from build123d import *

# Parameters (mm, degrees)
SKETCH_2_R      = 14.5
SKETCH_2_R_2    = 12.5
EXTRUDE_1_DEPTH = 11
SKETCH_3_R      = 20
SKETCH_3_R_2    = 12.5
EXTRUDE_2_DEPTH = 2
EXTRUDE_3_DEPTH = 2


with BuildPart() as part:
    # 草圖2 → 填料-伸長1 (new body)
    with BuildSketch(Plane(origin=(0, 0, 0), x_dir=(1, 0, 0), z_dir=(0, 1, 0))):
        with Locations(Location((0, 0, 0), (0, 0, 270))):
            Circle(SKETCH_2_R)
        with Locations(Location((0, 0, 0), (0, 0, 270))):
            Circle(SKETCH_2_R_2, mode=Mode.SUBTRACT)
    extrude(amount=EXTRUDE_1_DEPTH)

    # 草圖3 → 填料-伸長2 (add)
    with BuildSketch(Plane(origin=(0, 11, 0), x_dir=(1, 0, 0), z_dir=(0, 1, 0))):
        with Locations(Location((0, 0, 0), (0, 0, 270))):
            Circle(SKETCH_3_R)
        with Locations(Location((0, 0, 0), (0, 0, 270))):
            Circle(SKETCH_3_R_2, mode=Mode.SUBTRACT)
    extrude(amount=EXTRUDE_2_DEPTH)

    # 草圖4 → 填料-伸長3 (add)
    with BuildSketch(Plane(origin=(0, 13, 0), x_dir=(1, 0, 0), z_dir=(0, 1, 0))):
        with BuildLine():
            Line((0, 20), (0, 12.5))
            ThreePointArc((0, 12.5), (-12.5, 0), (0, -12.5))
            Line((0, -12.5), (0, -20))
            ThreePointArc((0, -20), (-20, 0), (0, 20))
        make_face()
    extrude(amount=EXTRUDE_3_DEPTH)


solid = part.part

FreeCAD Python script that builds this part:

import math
import FreeCAD as App
import Part
import Sketcher

doc = App.newDocument("Part")
body = doc.addObject("PartDesign::Body", "Body")

sketch1 = body.newObject("Sketcher::SketchObject", "Sketch")
sketch1.AttachmentSupport = (doc.getObject("XZ_Plane"), [""])
sketch1.MapMode = "FlatFace"
sketch1.addGeometry(Part.Circle(App.Vector(0, 0, 0), App.Vector(0, 0, 1), 14), False)
sketch1.addGeometry(Part.Circle(App.Vector(0, 0, 0), App.Vector(0, 0, 1), 12), False)
sketch1.addConstraint(Sketcher.Constraint("Coincident", 0, 3, -1, 1))
sketch1.addConstraint(Sketcher.Constraint("Coincident", 1, 3, -1, 1))
sketch1.addConstraint(Sketcher.Constraint("Diameter", 0, 29.0))
sketch1.addConstraint(Sketcher.Constraint("Diameter", 1, 25.0))
pad1 = body.newObject("PartDesign::Pad", "Pad")
pad1.Profile = sketch1
pad1.Length = 11
pad1.Reversed = True

sketch2 = body.newObject("Sketcher::SketchObject", "Sketch001")
sketch2.AttachmentSupport = (doc.getObject("XZ_Plane"), [""])
sketch2.MapMode = "FlatFace"
sketch2.AttachmentOffset = App.Placement(App.Vector(0, 0, -11), App.Rotation())
sketch2.addGeometry(Part.Circle(App.Vector(0, 0, 0), App.Vector(0, 0, 1), 20), False)
sketch2.addGeometry(Part.Circle(App.Vector(0, 0, 0), App.Vector(0, 0, 1), 12), False)
sketch2.addConstraint(Sketcher.Constraint("Coincident", 0, 3, -1, 1))
sketch2.addConstraint(Sketcher.Constraint("Coincident", 1, 3, -1, 1))
sketch2.addConstraint(Sketcher.Constraint("Diameter", 0, 40.0))
sketch2.addConstraint(Sketcher.Constraint("Diameter", 1, 25.0))
pad2 = body.newObject("PartDesign::Pad", "Pad001")
pad2.Profile = sketch2
pad2.Length = 2
pad2.Reversed = True

sketch3 = body.newObject("Sketcher::SketchObject", "Sketch002")
sketch3.AttachmentSupport = (doc.getObject("XZ_Plane"), [""])
sketch3.MapMode = "FlatFace"
sketch3.AttachmentOffset = App.Placement(App.Vector(0, 0, -13), App.Rotation())
sketch3.addGeometry(Part.LineSegment(App.Vector(0, -12, 0), App.Vector(0, -20, 0)), False)
sketch3.addGeometry(Part.ArcOfCircle(Part.Circle(App.Vector(0, 0, 0), App.Vector(0, 0, 1), 20), math.radians(90), math.radians(270)), False)
sketch3.addGeometry(Part.LineSegment(App.Vector(0, 20, 0), App.Vector(0, 12, 0)), False)
sketch3.addGeometry(Part.ArcOfCircle(Part.Circle(App.Vector(0, 0, 0), App.Vector(0, 0, 1), 12), math.radians(90), math.radians(270)), False)
sketch3.addConstraint(Sketcher.Constraint("Coincident", 0, 2, 1, 2))
sketch3.addConstraint(Sketcher.Constraint("Coincident", 1, 1, 2, 1))
sketch3.addConstraint(Sketcher.Constraint("Coincident", 2, 2, 3, 1))
sketch3.addConstraint(Sketcher.Constraint("Coincident", 3, 2, 0, 1))
sketch3.addConstraint(Sketcher.Constraint("Vertical", 0))
sketch3.addConstraint(Sketcher.Constraint("Vertical", 2))
sketch3.addConstraint(Sketcher.Constraint("Coincident", 1, 3, -1, 1))
sketch3.addConstraint(Sketcher.Constraint("Coincident", 3, 3, -1, 1))
sketch3.addConstraint(Sketcher.Constraint("PointOnObject", 0, 2, -2))
sketch3.addConstraint(Sketcher.Constraint("PointOnObject", 1, 1, -2))
sketch3.addConstraint(Sketcher.Constraint("Radius", 1, 20.0))
sketch3.addConstraint(Sketcher.Constraint("Radius", 3, 12.5))
pad3 = body.newObject("PartDesign::Pad", "Pad002")
pad3.Profile = sketch3
pad3.Length = 2
pad3.Reversed = True

doc.recompute()
